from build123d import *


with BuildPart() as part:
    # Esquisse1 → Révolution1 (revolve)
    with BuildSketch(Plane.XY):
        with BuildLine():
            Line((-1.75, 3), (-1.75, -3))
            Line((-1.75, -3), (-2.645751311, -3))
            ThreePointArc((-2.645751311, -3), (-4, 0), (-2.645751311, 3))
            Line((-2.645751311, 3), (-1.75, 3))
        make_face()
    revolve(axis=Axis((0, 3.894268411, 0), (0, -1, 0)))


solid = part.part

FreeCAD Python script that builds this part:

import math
import FreeCAD as App
import Part
import Sketcher
from FreeCAD import Vector
Q = App.Units.Quantity

doc = App.newDocument("Part")
params = doc.addObject("Spreadsheet::Sheet", "Params")
for row, (alias, value) in enumerate([
    ("sketch1_radius", "4 mm"),
    ("sketch1_height", "6 mm"),
    ("revolution_angle", "360 deg"),
], start=1):
    params.set(f"A{row}", alias)
    params.set(f"B{row}", "=" + value)
    params.setAlias(f"B{row}", alias)

body = doc.addObject("PartDesign::Body", "Body")

sketch1 = body.newObject("Sketcher::SketchObject", "Sketch")
sketch1.AttachmentSupport = (doc.getObject("XY_Plane"), [""])
sketch1.MapMode = "FlatFace"
sketch1.addGeometry([
    Part.LineSegment(Vector(-1.75, -3, 0), Vector(-1.75, 3, 0)),
    Part.LineSegment(Vector(-1.75, 3, 0), Vector(-2.645751, 3, 0)),
    Part.ArcOfCircle(Part.Circle(Vector(0, 0, 0), Vector(0, 0, 1), 4), math.radians(131.409622), math.radians(228.590378)),
    Part.LineSegment(Vector(-2.645751, -3, 0), Vector(-1.75, -3, 0)),
], False)
sketch1.addConstraint([
    Sketcher.Constraint("Coincident", 0, 2, 1, 1),
    Sketcher.Constraint("Coincident", 1, 2, 2, 1),
    Sketcher.Constraint("Coincident", 2, 2, 3, 1),
    Sketcher.Constraint("Coincident", 3, 2, 0, 1),
    Sketcher.Constraint("Vertical", 0),
    Sketcher.Constraint("Horizontal", 1),
    Sketcher.Constraint("Horizontal", 3),
    Sketcher.Constraint("Coincident", 2, 3, -1, 1),
    Sketcher.Constraint("Vertical", 1, 2, 2, 2),
    Sketcher.Constraint("Radius", 2, Q("4 mm")),
    Sketcher.Constraint("DistanceY", 0, 1, 0, 2, Q("6 mm")),
    Sketcher.Constraint("DistanceX", 0, 2, -1, 1, Q("1.75 mm")),
])
sketch1.setExpression("Constraints[9]", "Params.sketch1_radius")
sketch1.setExpression("Constraints[10]", "Params.sketch1_height")
revolution = body.newObject("PartDesign::Revolution", "Revolution")
revolution.Profile = sketch1
revolution.ReferenceAxis = (sketch1, ["V_Axis"])
revolution.setExpression("Angle", "Params.revolution_angle")

doc.recompute()
